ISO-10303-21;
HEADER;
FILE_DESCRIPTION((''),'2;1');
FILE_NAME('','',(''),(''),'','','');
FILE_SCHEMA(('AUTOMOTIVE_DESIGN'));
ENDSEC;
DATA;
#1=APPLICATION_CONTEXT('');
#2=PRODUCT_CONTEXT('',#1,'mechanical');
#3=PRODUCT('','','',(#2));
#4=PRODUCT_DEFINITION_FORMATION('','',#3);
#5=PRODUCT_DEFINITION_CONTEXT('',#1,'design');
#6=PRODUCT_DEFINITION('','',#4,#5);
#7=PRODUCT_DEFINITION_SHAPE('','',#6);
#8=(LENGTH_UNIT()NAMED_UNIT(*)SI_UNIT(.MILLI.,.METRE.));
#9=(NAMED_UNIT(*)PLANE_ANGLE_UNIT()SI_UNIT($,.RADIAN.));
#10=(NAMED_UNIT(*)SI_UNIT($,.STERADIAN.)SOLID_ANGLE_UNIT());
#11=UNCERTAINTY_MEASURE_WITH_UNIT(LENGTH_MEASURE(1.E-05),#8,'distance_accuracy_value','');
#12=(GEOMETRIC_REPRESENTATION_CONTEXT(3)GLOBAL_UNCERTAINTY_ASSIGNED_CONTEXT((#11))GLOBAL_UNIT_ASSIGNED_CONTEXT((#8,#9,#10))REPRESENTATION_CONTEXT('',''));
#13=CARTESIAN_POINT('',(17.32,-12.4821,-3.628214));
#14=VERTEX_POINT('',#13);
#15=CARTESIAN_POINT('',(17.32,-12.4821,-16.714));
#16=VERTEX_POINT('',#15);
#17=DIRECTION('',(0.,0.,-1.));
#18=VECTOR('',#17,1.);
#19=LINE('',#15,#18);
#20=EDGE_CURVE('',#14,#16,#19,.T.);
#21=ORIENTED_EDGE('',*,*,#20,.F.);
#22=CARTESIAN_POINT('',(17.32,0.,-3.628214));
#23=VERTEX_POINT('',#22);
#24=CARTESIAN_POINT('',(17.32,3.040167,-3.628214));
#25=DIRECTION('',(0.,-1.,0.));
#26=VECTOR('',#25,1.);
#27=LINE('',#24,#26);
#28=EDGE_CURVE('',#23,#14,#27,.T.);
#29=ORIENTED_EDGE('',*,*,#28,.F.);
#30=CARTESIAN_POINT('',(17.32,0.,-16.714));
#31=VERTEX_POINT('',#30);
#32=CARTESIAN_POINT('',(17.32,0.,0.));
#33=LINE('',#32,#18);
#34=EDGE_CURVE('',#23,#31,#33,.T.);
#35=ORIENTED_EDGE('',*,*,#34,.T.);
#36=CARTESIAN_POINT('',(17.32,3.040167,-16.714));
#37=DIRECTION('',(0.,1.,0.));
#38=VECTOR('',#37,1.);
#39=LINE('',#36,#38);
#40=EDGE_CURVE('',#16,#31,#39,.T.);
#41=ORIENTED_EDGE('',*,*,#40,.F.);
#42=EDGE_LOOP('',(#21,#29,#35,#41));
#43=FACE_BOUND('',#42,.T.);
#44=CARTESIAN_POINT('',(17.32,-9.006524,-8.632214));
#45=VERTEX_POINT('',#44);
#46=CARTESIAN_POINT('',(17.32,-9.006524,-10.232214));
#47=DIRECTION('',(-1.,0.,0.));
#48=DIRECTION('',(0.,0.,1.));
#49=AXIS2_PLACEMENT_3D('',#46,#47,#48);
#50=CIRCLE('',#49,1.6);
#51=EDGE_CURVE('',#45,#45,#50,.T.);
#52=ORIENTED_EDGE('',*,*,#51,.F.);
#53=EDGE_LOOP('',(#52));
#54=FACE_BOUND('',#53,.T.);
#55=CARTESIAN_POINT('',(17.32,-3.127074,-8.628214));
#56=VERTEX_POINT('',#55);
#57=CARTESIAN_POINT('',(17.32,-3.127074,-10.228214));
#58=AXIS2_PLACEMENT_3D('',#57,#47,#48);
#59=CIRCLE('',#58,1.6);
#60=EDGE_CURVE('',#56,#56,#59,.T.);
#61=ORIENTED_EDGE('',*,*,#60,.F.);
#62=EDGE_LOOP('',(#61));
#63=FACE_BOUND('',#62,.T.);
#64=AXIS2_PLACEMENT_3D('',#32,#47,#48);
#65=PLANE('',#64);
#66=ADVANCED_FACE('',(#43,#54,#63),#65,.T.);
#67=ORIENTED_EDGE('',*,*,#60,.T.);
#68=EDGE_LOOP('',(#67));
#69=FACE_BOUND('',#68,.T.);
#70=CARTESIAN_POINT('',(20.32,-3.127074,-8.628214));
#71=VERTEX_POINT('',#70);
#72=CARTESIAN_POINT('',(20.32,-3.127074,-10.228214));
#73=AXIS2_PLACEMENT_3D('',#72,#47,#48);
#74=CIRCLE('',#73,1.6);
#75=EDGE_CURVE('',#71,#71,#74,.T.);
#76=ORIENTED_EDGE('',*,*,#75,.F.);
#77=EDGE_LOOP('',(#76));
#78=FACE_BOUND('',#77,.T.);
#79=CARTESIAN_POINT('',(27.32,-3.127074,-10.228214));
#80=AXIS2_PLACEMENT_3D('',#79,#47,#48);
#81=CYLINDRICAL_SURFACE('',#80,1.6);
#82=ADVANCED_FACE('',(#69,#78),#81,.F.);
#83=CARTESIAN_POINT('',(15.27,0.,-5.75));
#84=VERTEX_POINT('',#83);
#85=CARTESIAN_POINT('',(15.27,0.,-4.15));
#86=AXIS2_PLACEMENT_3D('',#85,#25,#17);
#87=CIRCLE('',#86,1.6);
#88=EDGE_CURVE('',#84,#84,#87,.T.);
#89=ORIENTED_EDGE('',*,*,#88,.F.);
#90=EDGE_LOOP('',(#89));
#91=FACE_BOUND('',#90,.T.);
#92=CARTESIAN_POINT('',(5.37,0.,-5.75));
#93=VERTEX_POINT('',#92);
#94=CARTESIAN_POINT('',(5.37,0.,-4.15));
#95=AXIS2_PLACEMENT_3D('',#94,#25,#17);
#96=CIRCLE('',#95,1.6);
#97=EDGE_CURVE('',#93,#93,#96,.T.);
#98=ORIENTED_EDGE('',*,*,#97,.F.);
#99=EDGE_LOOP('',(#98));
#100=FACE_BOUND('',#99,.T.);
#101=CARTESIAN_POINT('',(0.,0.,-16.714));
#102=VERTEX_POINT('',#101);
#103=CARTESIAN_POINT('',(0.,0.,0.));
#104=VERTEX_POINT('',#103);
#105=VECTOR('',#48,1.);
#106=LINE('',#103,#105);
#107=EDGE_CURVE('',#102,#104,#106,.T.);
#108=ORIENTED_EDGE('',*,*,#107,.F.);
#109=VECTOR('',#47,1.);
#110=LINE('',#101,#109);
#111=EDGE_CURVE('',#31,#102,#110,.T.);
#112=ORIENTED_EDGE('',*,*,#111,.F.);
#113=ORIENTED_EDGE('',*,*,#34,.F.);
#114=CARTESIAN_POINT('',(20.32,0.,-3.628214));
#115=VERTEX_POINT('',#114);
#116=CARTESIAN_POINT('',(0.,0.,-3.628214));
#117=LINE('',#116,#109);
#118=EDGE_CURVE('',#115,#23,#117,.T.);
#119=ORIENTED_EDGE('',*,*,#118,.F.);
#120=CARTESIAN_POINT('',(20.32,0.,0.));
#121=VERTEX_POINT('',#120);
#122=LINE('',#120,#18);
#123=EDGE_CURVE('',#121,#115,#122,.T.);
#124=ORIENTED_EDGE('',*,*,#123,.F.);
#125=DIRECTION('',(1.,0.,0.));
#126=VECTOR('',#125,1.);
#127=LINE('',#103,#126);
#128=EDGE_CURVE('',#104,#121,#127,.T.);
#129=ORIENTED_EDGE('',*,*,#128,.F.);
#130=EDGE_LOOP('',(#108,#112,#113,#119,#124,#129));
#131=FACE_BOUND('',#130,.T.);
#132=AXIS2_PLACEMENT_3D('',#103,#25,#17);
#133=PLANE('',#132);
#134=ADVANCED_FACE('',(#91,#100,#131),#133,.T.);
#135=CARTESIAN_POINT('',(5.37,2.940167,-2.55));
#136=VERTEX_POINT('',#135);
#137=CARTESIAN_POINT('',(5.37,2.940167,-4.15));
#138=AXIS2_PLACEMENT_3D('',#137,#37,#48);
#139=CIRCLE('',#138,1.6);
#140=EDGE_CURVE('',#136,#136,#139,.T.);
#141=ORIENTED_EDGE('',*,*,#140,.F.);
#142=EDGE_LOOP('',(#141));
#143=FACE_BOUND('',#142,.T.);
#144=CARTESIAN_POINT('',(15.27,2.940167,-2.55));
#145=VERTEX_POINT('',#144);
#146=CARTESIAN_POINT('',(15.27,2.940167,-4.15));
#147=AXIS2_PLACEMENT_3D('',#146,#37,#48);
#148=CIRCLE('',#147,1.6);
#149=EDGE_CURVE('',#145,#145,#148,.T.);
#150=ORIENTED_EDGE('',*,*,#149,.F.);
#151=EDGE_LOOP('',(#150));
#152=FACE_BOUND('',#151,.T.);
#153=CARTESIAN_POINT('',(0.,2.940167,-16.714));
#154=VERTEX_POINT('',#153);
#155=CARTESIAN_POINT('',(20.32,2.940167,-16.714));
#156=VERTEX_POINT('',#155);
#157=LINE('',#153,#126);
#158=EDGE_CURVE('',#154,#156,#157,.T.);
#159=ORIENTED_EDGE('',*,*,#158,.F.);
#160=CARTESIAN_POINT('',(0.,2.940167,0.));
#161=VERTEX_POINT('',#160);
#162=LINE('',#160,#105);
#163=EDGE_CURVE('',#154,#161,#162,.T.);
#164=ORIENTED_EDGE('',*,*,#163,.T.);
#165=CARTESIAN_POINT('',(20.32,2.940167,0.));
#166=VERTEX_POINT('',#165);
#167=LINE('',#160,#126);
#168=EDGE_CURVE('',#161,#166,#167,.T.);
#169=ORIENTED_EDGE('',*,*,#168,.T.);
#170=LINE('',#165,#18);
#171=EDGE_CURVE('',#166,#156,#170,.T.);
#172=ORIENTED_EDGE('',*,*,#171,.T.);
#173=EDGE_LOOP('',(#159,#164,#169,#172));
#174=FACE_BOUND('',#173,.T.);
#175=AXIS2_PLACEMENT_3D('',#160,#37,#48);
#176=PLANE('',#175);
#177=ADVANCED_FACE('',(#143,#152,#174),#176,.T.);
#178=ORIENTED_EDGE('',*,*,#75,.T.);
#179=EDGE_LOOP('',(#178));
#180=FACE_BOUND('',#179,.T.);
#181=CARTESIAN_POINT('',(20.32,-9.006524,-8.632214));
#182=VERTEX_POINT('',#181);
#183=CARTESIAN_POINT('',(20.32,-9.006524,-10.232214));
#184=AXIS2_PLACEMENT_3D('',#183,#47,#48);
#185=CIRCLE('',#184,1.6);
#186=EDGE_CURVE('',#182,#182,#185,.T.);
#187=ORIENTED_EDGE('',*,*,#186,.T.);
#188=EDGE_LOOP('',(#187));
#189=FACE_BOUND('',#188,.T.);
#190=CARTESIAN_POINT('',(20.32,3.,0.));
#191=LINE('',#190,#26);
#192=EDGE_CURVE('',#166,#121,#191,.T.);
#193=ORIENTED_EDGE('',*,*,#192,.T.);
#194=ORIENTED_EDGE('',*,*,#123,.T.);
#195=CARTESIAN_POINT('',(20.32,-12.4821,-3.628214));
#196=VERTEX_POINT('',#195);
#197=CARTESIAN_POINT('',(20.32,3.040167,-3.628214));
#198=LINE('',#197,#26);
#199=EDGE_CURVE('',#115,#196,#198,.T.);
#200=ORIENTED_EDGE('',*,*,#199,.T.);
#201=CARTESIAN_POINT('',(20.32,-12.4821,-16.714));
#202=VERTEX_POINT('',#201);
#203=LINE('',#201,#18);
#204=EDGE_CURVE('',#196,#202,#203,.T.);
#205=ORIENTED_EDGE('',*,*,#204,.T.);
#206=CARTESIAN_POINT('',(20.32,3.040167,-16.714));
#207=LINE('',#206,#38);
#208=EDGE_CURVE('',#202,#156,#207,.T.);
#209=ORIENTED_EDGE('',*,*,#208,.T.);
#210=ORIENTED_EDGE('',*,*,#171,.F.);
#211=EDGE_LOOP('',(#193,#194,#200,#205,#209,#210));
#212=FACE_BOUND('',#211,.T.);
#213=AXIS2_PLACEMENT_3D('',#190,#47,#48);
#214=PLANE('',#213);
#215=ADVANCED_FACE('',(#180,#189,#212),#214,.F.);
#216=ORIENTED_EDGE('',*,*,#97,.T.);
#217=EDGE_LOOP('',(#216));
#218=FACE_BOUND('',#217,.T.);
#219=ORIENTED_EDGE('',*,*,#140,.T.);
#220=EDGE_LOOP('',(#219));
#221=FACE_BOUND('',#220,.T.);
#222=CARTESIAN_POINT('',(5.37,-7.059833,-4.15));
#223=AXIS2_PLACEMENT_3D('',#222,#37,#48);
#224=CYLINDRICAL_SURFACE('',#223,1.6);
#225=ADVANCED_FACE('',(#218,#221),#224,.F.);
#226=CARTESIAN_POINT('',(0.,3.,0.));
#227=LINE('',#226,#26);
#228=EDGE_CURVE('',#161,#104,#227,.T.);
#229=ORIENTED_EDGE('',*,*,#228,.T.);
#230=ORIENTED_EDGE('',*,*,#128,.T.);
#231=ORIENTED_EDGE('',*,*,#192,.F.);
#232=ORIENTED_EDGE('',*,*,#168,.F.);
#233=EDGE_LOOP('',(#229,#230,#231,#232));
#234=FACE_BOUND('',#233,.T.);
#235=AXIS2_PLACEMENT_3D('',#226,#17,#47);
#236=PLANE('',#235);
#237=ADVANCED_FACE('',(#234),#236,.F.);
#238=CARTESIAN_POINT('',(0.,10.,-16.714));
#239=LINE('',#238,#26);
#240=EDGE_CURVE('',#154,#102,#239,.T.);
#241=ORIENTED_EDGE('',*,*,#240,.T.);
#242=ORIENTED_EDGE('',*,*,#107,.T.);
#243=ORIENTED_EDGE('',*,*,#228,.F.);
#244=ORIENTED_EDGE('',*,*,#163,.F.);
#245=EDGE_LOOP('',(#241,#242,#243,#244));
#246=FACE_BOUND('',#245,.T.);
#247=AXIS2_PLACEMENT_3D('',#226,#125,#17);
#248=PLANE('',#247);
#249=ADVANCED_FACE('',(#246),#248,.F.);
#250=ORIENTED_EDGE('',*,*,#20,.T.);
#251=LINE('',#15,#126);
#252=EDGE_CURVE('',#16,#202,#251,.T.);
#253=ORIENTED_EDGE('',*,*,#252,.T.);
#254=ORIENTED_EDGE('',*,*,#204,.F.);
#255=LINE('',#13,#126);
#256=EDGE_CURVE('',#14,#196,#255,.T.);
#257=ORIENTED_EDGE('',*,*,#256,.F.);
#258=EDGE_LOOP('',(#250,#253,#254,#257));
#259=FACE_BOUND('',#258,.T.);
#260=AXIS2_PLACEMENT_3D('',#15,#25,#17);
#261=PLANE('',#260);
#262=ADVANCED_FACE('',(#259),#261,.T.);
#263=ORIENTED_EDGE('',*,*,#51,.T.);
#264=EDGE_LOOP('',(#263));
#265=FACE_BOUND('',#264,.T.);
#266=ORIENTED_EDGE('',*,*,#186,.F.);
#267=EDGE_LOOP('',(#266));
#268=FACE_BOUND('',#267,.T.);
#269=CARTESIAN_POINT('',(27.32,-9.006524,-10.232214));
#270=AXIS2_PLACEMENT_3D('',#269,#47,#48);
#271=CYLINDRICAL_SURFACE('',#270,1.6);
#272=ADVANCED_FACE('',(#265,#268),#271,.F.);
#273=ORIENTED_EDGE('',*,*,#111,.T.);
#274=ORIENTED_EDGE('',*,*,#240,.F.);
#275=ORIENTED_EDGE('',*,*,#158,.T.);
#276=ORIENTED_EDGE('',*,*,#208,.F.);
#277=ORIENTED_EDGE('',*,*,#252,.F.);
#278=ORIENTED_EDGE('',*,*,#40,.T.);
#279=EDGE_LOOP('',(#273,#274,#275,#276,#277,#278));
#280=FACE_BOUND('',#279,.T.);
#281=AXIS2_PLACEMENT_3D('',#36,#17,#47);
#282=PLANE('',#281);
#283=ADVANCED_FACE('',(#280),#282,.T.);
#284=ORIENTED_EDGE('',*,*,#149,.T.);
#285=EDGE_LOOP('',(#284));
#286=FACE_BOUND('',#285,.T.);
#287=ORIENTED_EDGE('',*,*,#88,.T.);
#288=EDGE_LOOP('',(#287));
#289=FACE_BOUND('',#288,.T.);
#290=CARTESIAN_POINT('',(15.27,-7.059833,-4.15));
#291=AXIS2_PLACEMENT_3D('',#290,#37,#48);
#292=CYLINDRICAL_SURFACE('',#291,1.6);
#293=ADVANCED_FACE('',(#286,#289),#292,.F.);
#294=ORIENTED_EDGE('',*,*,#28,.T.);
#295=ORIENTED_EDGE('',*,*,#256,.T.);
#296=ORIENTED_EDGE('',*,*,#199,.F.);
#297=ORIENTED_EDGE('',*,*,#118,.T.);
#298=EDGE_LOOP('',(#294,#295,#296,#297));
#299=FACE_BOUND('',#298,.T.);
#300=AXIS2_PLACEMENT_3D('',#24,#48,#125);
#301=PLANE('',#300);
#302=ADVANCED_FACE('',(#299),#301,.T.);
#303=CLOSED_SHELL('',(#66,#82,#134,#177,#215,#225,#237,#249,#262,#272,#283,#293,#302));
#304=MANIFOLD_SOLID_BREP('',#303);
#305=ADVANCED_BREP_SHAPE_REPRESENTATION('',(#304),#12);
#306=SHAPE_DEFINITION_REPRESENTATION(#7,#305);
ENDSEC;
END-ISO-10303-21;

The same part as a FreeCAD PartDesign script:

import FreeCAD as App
import Part
import Sketcher

V = App.Vector
Q = App.Units.Quantity


def add_polygon(sketch, points):
    """Adds a closed chain of lines whose ends are joined by coincident constraints."""
    first, n = sketch.GeometryCount, len(points)
    for a, b in zip(points, points[1:] + points[:1]):
        sketch.addGeometry(Part.LineSegment(App.Vector(*a, 0), App.Vector(*b, 0)), False)
    for i in range(n):
        sketch.addConstraint(Sketcher.Constraint("Coincident", first + i, 2, first + (i + 1) % n, 1))

doc = App.newDocument("Part")
params = doc.addObject("Spreadsheet::Sheet", "Params")
for row, (alias, value) in enumerate([
    ("sketch1_width", "20.32 mm"),
    ("pad1_length", "3 mm"),
    ("pad2_length", "3 mm"),
    ("pocket1_length", "0.1 mm"),
    ("sketch4_width", "20.32 mm"),
    ("pocket2_length", "10 mm"),
    ("sketch5_diameter", "3.2 mm"),
    ("pocket3_length", "10 mm"),
    ("sketch6_diameter", "3.2 mm"),
    ("pocket4_length", "10 mm"),
], start=1):
    params.set(f"A{row}", alias)
    params.set(f"B{row}", "=" + value)
    params.setAlias(f"B{row}", alias)

body = doc.addObject("PartDesign::Body", "Body")

sketch1 = body.newObject("Sketcher::SketchObject", "Sketch")
sketch1.AttachmentSupport = (doc.getObject("XZ_Plane"), [""])
sketch1.MapMode = "FlatFace"
add_polygon(sketch1, [(0, -20), (0, 0), (20, 0), (20, -20)])
sketch1.addConstraint(Sketcher.Constraint("Vertical", 0))
sketch1.addConstraint(Sketcher.Constraint("Horizontal", 1))
sketch1.addConstraint(Sketcher.Constraint("Vertical", 2))
sketch1.addConstraint(Sketcher.Constraint("Horizontal", 3))
sketch1.addConstraint(Sketcher.Constraint("Coincident", 0, 2, -1, 1))
sketch1.addConstraint(Sketcher.Constraint("Equal", 3, 0))
sketch1.addConstraint(Sketcher.Constraint("DistanceX", 1, 1, 1, 2, Q("20.32 mm")))
sketch1.setExpression("Constraints[10]", "Params.sketch1_width")
pad1 = body.newObject("PartDesign::Pad", "Pad")
pad1.Profile = sketch1
pad1.setExpression("Length", "Params.pad1_length")
pad1.Reversed = True

sketch2 = body.newObject("Sketcher::SketchObject", "Sketch001")
sketch2.AttachmentSupport = (doc.getObject("YZ_Plane"), [""])
sketch2.MapMode = "FlatFace"
sketch2.AttachmentOffset = App.Placement(V(0, 0, 20.32), App.Rotation())
add_polygon(sketch2, [(3, -4), (-12, -4), (-12, -17), (3, -17)])
sketch2.addConstraint(Sketcher.Constraint("Horizontal", 0))
sketch2.addConstraint(Sketcher.Constraint("Vertical", 1))
sketch2.addConstraint(Sketcher.Constraint("Horizontal", 2))
sketch2.addConstraint(Sketcher.Constraint("Vertical", 3))
sketch2.addConstraint(Sketcher.Constraint("DistanceY", 1, 2, -1, 1, Q("16.714 mm")))
sketch2.addConstraint(Sketcher.Constraint("DistanceX", 0, 2, -1, 1, Q("12.4821 mm")))
sketch2.addConstraint(Sketcher.Constraint("DistanceX", 0, 2, 0, 1, Q("15.522266 mm")))
sketch2.addConstraint(Sketcher.Constraint("DistanceY", 1, 2, 1, 1, Q("13.085786 mm")))
pad2 = body.newObject("PartDesign::Pad", "Pad001")
pad2.Profile = sketch2
pad2.setExpression("Length", "Params.pad2_length")
pad2.Reversed = True

sketch3 = body.newObject("Sketcher::SketchObject", "Sketch002")
sketch3.AttachmentSupport = (doc.getObject("XZ_Plane"), [""])
sketch3.MapMode = "FlatFace"
sketch3.AttachmentOffset = App.Placement(V(0, 0, -3.040167), App.Rotation())
add_polygon(sketch3, [(-3, -22), (-3, 4), (29, 4), (29, -22)])
sketch3.addConstraint(Sketcher.Constraint("Vertical", 0))
sketch3.addConstraint(Sketcher.Constraint("Horizontal", 1))
sketch3.addConstraint(Sketcher.Constraint("Vertical", 2))
sketch3.addConstraint(Sketcher.Constraint("Horizontal", 3))
sketch3.addConstraint(Sketcher.Constraint("DistanceX", 1, 1, 1, 2, Q("31.587669 mm")))
sketch3.addConstraint(Sketcher.Constraint("DistanceY", 0, 1, 0, 2, Q("25.562973 mm")))
sketch3.addConstraint(Sketcher.Constraint("DistanceY", 2, 2, -1, 1, Q("22.049519 mm")))
sketch3.addConstraint(Sketcher.Constraint("DistanceX", 0, 2, -1, 1, Q("2.511936 mm")))
pocket1 = body.newObject("PartDesign::Pocket", "Pocket")
pocket1.Profile = sketch3
pocket1.setExpression("Length", "Params.pocket1_length")
pocket1.Reversed = True

sketch4 = body.newObject("Sketcher::SketchObject", "Sketch003")
sketch4.AttachmentSupport = (doc.getObject("XZ_Plane"), [""])
sketch4.MapMode = "FlatFace"
add_polygon(sketch4, [(20.3, -20.3), (20.3, -16.7), (0, -16.7), (0, -20.3)])
sketch4.addConstraint(Sketcher.Constraint("Vertical", 0))
sketch4.addConstraint(Sketcher.Constraint("Horizontal", 1))
sketch4.addConstraint(Sketcher.Constraint("Vertical", 2))
sketch4.addConstraint(Sketcher.Constraint("Horizontal", 3))
sketch4.addConstraint(Sketcher.Constraint("PointOnObject", 1, 2, -2))
sketch4.addConstraint(Sketcher.Constraint("DistanceX", 1, 2, 1, 1, Q("20.32 mm")))
sketch4.addConstraint(Sketcher.Constraint("DistanceY", 0, 1, 0, 2, Q("3.606 mm")))
sketch4.addConstraint(Sketcher.Constraint("DistanceY", 2, 2, -1, 1, Q("20.32 mm")))
sketch4.setExpression("Constraints[9]", "Params.sketch4_width")
pocket2 = body.newObject("PartDesign::Pocket", "Pocket001")
pocket2.Profile = sketch4
pocket2.setExpression("Length", "Params.pocket2_length")

sketch5 = body.newObject("Sketcher::SketchObject", "Sketch004")
sketch5.AttachmentSupport = (doc.getObject("XZ_Plane"), [""])
sketch5.MapMode = "FlatFace"
sketch5.AttachmentOffset = App.Placement(V(0, 0, -2.940167), App.Rotation())
sketch5.addGeometry(Part.Circle(V(5.4, -4.2, 0), V(0, 0, 1), 1.6), False)
sketch5.addGeometry(Part.Circle(V(15.3, -4.2, 0), V(0, 0, 1), 1.6), False)
sketch5.addConstraint(Sketcher.Constraint("Equal", 0, 1))
sketch5.addConstraint(Sketcher.Constraint("Horizontal", 0, 3, 1, 3))
sketch5.addConstraint(Sketcher.Constraint("Diameter", 0, Q("3.2 mm")))
sketch5.addConstraint(Sketcher.Constraint("DistanceX", 0, 3, 1, 3, Q("9.9 mm")))
sketch5.addConstraint(Sketcher.Constraint("DistanceX", -1, 1, 0, 3, Q("5.37 mm")))
sketch5.addConstraint(Sketcher.Constraint("DistanceY", 0, 3, -1, 1, Q("4.15 mm")))
sketch5.setExpression("Constraints[2]", "Params.sketch5_diameter")
pocket3 = body.newObject("PartDesign::Pocket", "Pocket002")
pocket3.Profile = sketch5
pocket3.setExpression("Length", "Params.pocket3_length")
pocket3.Reversed = True

sketch6 = body.newObject("Sketcher::SketchObject", "Sketch005")
sketch6.AttachmentSupport = (doc.getObject("YZ_Plane"), [""])
sketch6.MapMode = "FlatFace"
sketch6.AttachmentOffset = App.Placement(V(0, 0, 17.32), App.Rotation())
sketch6.addGeometry(Part.Circle(V(-9, -10.2, 0), V(0, 0, 1), 1.6), False)
sketch6.addGeometry(Part.Circle(V(-3.1, -10.2, 0), V(0, 0, 1), 1.6), False)
sketch6.addConstraint(Sketcher.Constraint("Equal", 0, 1))
sketch6.addConstraint(Sketcher.Constraint("Diameter", 0, Q("3.2 mm")))
sketch6.addConstraint(Sketcher.Constraint("DistanceY", 0, 3, 1, 3, Q("0.004 mm")))
sketch6.addConstraint(Sketcher.Constraint("DistanceX", 0, 3, 1, 3, Q("5.87945 mm")))
sketch6.addConstraint(Sketcher.Constraint("DistanceX", 0, 3, -1, 1, Q("9.006524 mm")))
sketch6.addConstraint(Sketcher.Constraint("DistanceY", 0, 3, -1, 1, Q("10.232214 mm")))
sketch6.setExpression("Constraints[1]", "Params.sketch6_diameter")
pocket4 = body.newObject("PartDesign::Pocket", "Pocket003")
pocket4.Profile = sketch6
pocket4.setExpression("Length", "Params.pocket4_length")
pocket4.Reversed = True

doc.recompute()
